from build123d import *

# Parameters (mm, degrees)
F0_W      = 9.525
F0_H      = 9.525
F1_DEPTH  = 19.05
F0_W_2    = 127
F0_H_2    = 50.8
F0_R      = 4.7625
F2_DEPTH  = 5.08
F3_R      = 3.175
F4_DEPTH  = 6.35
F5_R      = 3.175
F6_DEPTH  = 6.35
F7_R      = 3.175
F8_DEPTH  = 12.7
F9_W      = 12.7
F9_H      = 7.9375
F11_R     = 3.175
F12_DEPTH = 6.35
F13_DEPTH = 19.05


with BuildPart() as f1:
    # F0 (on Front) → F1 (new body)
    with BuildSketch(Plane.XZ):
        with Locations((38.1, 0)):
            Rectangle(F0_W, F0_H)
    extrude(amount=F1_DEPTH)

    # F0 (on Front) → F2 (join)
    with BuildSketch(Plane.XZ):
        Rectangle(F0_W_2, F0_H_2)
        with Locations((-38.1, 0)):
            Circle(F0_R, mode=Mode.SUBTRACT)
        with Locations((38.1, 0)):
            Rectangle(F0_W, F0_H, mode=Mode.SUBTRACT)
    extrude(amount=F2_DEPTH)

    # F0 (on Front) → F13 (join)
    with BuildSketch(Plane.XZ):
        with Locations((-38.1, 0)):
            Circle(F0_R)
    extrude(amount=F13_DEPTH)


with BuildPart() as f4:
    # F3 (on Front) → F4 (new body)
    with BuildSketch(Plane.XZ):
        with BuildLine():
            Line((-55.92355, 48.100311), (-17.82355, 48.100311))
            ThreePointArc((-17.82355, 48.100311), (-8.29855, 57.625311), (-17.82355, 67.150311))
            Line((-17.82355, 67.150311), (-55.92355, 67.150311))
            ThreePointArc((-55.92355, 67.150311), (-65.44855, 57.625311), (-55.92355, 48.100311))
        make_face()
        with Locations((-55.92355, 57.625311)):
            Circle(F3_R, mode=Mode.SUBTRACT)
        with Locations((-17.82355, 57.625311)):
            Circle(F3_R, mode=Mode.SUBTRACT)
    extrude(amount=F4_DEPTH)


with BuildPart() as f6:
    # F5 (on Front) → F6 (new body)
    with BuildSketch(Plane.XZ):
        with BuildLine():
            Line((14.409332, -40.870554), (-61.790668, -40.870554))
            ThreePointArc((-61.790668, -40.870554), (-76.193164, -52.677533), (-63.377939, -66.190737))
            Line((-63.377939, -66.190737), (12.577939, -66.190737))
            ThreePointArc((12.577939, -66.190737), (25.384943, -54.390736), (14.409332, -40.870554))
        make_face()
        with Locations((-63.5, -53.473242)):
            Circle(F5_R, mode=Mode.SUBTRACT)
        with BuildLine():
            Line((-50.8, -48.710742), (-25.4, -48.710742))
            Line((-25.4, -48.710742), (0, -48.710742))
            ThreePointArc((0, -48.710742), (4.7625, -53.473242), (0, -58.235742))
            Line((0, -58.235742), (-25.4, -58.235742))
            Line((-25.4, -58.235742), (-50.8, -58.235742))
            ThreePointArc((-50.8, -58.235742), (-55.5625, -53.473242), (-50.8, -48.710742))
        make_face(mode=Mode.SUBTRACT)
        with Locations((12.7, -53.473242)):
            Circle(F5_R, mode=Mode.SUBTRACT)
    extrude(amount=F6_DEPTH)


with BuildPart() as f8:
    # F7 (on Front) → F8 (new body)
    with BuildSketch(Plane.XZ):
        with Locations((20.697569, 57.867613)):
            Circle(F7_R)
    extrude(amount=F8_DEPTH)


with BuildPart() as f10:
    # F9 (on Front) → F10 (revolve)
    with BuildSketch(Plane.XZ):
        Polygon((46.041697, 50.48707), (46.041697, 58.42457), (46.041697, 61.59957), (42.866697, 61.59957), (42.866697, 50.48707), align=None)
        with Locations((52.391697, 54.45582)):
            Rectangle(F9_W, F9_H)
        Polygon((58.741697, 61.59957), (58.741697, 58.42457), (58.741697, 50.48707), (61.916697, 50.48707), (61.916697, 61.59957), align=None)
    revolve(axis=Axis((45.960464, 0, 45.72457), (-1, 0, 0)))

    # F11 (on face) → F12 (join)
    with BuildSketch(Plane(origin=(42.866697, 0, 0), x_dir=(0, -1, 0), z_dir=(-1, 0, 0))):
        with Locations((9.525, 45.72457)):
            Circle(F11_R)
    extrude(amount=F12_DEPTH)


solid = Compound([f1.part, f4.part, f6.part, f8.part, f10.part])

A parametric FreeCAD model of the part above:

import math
import FreeCAD as App
import Part
import Sketcher
from FreeCAD import Vector
Q = App.Units.Quantity


def add_polygon(sketch, points):
    """Adds a closed chain of lines whose ends are joined by coincident constraints."""
    first, n = sketch.GeometryCount, len(points)
    for a, b in zip(points, points[1:] + points[:1]):
        sketch.addGeometry(Part.LineSegment(App.Vector(*a, 0), App.Vector(*b, 0)), False)
    for i in range(n):
        sketch.addConstraint(Sketcher.Constraint("Coincident", first + i, 2, first + (i + 1) % n, 1))

doc = App.newDocument("Part")
params = doc.addObject("Spreadsheet::Sheet", "Params")
for row, (alias, value) in enumerate([
    ("sketch1_width", "0.375 in"),
    ("pad1_length", "0.75 in"),
    ("sketch2_width", "5 in"),
    ("sketch2_height", "2 in"),
    ("sketch2_diameter", "0.375 in"),
    ("sketch2_width2", "0.375 in"),
    ("pad2_length", "0.2 in"),
    ("sketch3_diameter", "0.375 in"),
    ("pad3_length", "0.75 in"),
    ("sketch4_diameter", "0.25 in"),
    ("sketch4_width", "1.5 in"),
    ("sketch4_radius", "0.375 in"),
    ("pad4_length", "0.25 in"),
    ("sketch5_diameter", "0.25 in"),
    ("sketch5_width", "3 in"),
    ("sketch5_width2", "2 in"),
    ("sketch5_radius", "0.1875 in"),
    ("pad5_length", "0.25 in"),
    ("sketch6_diameter", "0.25 in"),
    ("pad6_length", "0.5 in"),
    ("sketch7_width", "0.5 in"),
    ("sketch7_width2", "0.75 in"),
    ("sketch7_height", "0.4375 in"),
    ("revolution_angle", "360 deg"),
    ("sketch8_diameter", "0.25 in"),
    ("pad7_length", "0.25 in"),
], start=1):
    params.set(f"A{row}", alias)
    params.set(f"B{row}", "=" + value)
    params.setAlias(f"B{row}", alias)

body = doc.addObject("PartDesign::Body", "Body")

sketch1 = doc.addObject("Sketcher::SketchObject", "Sketch")
body.addObject(sketch1)
sketch1.AttachmentSupport = (doc.XZ_Plane, [""])
sketch1.MapMode = "FlatFace"
add_polygon(sketch1, [(33.3375, 4.7625), (33.3375, -4.7625), (42.8625, -4.7625), (42.8625, 4.7625)])
sketch1.addConstraint(Sketcher.Constraint("Vertical", 0))
sketch1.addConstraint(Sketcher.Constraint("Horizontal", 1))
sketch1.addConstraint(Sketcher.Constraint("Vertical", 2))
sketch1.addConstraint(Sketcher.Constraint("Horizontal", 3))
sketch1.addConstraint(Sketcher.Constraint("Equal", 3, 0))
sketch1.addConstraint(Sketcher.Constraint("DistanceX", 1, 1, 1, 2, Q("0.375 in")))
sketch1.addConstraint(Sketcher.Constraint("DistanceX", -1, 1, 0, 2, Q("1.3125 in")))
sketch1.addConstraint(Sketcher.Constraint("DistanceY", 0, 2, -1, 1, Q("0.1875 in")))
sketch1.setExpression("Constraints[9]", "Params.sketch1_width")
pad1 = doc.addObject("PartDesign::Pad", "Pad")
body.addObject(pad1)
pad1.Profile = sketch1
pad1.setExpression("Length", "Params.pad1_length")

sketch2 = doc.addObject("Sketcher::SketchObject", "Sketch001")
body.addObject(sketch2)
sketch2.AttachmentSupport = (doc.XZ_Plane, [""])
sketch2.MapMode = "FlatFace"
add_polygon(sketch2, [(-63.5, 25.4), (-63.5, -25.4), (63.5, -25.4), (63.5, 25.4)])
sketch2.addGeometry(Part.Circle(Vector(-38.1, 0, 0), Vector(0, 0, 1), 4.7625), False)
add_polygon(sketch2, [(42.8625, -4.7625), (33.3375, -4.7625), (33.3375, 4.7625), (42.8625, 4.7625)])
sketch2.addConstraint(Sketcher.Constraint("Vertical", 0))
sketch2.addConstraint(Sketcher.Constraint("Horizontal", 1))
sketch2.addConstraint(Sketcher.Constraint("Vertical", 2))
sketch2.addConstraint(Sketcher.Constraint("Horizontal", 3))
sketch2.addConstraint(Sketcher.Constraint("Horizontal", 5))
sketch2.addConstraint(Sketcher.Constraint("Vertical", 6))
sketch2.addConstraint(Sketcher.Constraint("Horizontal", 7))
sketch2.addConstraint(Sketcher.Constraint("Vertical", 8))
sketch2.addConstraint(Sketcher.Constraint("Symmetric", 0, 2, 2, 2, -1, 1))
sketch2.addConstraint(Sketcher.Constraint("PointOnObject", 4, 3, -1))
sketch2.addConstraint(Sketcher.Constraint("Equal", 7, 6))
sketch2.addConstraint(Sketcher.Constraint("DistanceX", 1, 1, 1, 2, Q("5 in")))
sketch2.addConstraint(Sketcher.Constraint("DistanceY", 0, 2, 0, 1, Q("2 in")))
sketch2.addConstraint(Sketcher.Constraint("Diameter", 4, Q("0.375 in")))
sketch2.addConstraint(Sketcher.Constraint("DistanceX", 0, 2, 4, 3, Q("1 in")))
sketch2.addConstraint(Sketcher.Constraint("DistanceX", 5, 2, 5, 1, Q("0.375 in")))
sketch2.addConstraint(Sketcher.Constraint("DistanceX", -1, 1, 5, 2, Q("1.3125 in")))
sketch2.addConstraint(Sketcher.Constraint("DistanceY", 5, 2, -1, 1, Q("0.1875 in")))
sketch2.setExpression("Constraints[19]", "Params.sketch2_width")
sketch2.setExpression("Constraints[20]", "Params.sketch2_height")
sketch2.setExpression("Constraints[21]", "Params.sketch2_diameter")
sketch2.setExpression("Constraints[23]", "Params.sketch2_width2")
pad2 = doc.addObject("PartDesign::Pad", "Pad001")
body.addObject(pad2)
pad2.Profile = sketch2
pad2.setExpression("Length", "Params.pad2_length")

sketch3 = doc.addObject("Sketcher::SketchObject", "Sketch002")
body.addObject(sketch3)
sketch3.AttachmentSupport = (doc.XZ_Plane, [""])
sketch3.MapMode = "FlatFace"
sketch3.addGeometry(Part.Circle(Vector(-38.1, 0, 0), Vector(0, 0, 1), 4.7625), False)
sketch3.addConstraint(Sketcher.Constraint("PointOnObject", 0, 3, -1))
sketch3.addConstraint(Sketcher.Constraint("Diameter", 0, Q("0.375 in")))
sketch3.addConstraint(Sketcher.Constraint("DistanceX", 0, 3, -1, 1, Q("1.5 in")))
sketch3.setExpression("Constraints[1]", "Params.sketch3_diameter")
pad3 = doc.addObject("PartDesign::Pad", "Pad002")
body.addObject(pad3)
pad3.Profile = sketch3
pad3.setExpression("Length", "Params.pad3_length")
body2 = doc.addObject("PartDesign::Body", "Body001")

sketch4 = doc.addObject("Sketcher::SketchObject", "Sketch003")
body2.addObject(sketch4)
sketch4.AttachmentSupport = (doc.getObject("XZ_Plane001"), [""])
sketch4.MapMode = "FlatFace"
sketch4.addGeometry(Part.LineSegment(Vector(-55.92355, 48.100311, 0), Vector(-17.82355, 48.100311, 0)), False)
sketch4.addGeometry(Part.ArcOfCircle(Part.Circle(Vector(-17.82355, 57.625311, 0), Vector(0, 0, 1), 9.525), math.radians(-90), math.radians(90)), False)
sketch4.addGeometry(Part.LineSegment(Vector(-17.82355, 67.150311, 0), Vector(-55.92355, 67.150311, 0)), False)
sketch4.addGeometry(Part.ArcOfCircle(Part.Circle(Vector(-55.92355, 57.625311, 0), Vector(0, 0, 1), 9.525), math.radians(90), math.radians(270)), False)
sketch4.addGeometry(Part.Circle(Vector(-55.92355, 57.625311, 0), Vector(0, 0, 1), 3.175), False)
sketch4.addGeometry(Part.Circle(Vector(-17.82355, 57.625311, 0), Vector(0, 0, 1), 3.175), False)
sketch4.addConstraint(Sketcher.Constraint("Tangent", 0, 2, 1, 1))
sketch4.addConstraint(Sketcher.Constraint("Tangent", 1, 2, 2, 1))
sketch4.addConstraint(Sketcher.Constraint("Tangent", 2, 2, 3, 1))
sketch4.addConstraint(Sketcher.Constraint("Tangent", 3, 2, 0, 1))
sketch4.addConstraint(Sketcher.Constraint("Horizontal", 0))
sketch4.addConstraint(Sketcher.Constraint("Horizontal", 2))
sketch4.addConstraint(Sketcher.Constraint("Coincident", 4, 3, 3, 3))
sketch4.addConstraint(Sketcher.Constraint("Coincident", 5, 3, 1, 3))
sketch4.addConstraint(Sketcher.Constraint("Equal", 4, 5))
sketch4.addConstraint(Sketcher.Constraint("Diameter", 4, Q("0.25 in")))
sketch4.addConstraint(Sketcher.Constraint("DistanceX", 0, 1, 0, 2, Q("1.5 in")))
sketch4.addConstraint(Sketcher.Constraint("Radius", 1, Q("0.375 in")))
sketch4.addConstraint(Sketcher.Constraint("DistanceX", 1, 3, -1, 1, 17.82355))
sketch4.addConstraint(Sketcher.Constraint("DistanceY", -1, 1, 1, 3, 57.625311))
sketch4.setExpression("Constraints[9]", "Params.sketch4_diameter")
sketch4.setExpression("Constraints[10]", "Params.sketch4_width")
sketch4.setExpression("Constraints[11]", "Params.sketch4_radius")
pad4 = doc.addObject("PartDesign::Pad", "Pad003")
body2.addObject(pad4)
pad4.Profile = sketch4
pad4.setExpression("Length", "Params.pad4_length")
body3 = doc.addObject("PartDesign::Body", "Body002")

sketch5 = doc.addObject("Sketcher::SketchObject", "Sketch004")
body3.addObject(sketch5)
sketch5.AttachmentSupport = (doc.getObject("XZ_Plane002"), [""])
sketch5.MapMode = "FlatFace"
sketch5.addGeometry(Part.LineSegment(Vector(14.409332, -40.870554, 0), Vector(-61.790668, -40.870554, 0)), False)
sketch5.addGeometry(Part.ArcOfCircle(Part.Circle(Vector(-63.5, -53.473242, 0), Vector(0, 0, 1), 12.71808), math.radians(82.275974), math.radians(270.549901)), False)
sketch5.addGeometry(Part.LineSegment(Vector(-63.377939, -66.190737, 0), Vector(12.577939, -66.190737, 0)), False)
sketch5.addGeometry(Part.ArcOfCircle(Part.Circle(Vector(12.7, -53.473242, 0), Vector(0, 0, 1), 12.71808), math.radians(-90.549902), math.radians(82.275975)), False)
sketch5.addGeometry(Part.Circle(Vector(-63.5, -53.473242, 0), Vector(0, 0, 1), 3.175), False)
sketch5.addGeometry(Part.ArcOfCircle(Part.Circle(Vector(-50.8, -53.473242, 0), Vector(0, 0, 1), 4.7625), math.radians(90), math.radians(270)), False)
sketch5.addGeometry(Part.LineSegment(Vector(-50.8, -48.710742, 0), Vector(0, -48.710742, 0)), False)
sketch5.addGeometry(Part.ArcOfCircle(Part.Circle(Vector(0, -53.473242, 0), Vector(0, 0, 1), 4.7625), math.radians(-90), math.radians(90)), False)
sketch5.addGeometry(Part.LineSegment(Vector(0, -58.235742, 0), Vector(-50.8, -58.235742, 0)), False)
sketch5.addGeometry(Part.Circle(Vector(12.7, -53.473242, 0), Vector(0, 0, 1), 3.175), False)
sketch5.addConstraint(Sketcher.Constraint("Coincident", 0, 2, 1, 1))
sketch5.addConstraint(Sketcher.Constraint("Coincident", 1, 2, 2, 1))
sketch5.addConstraint(Sketcher.Constraint("Coincident", 2, 2, 3, 1))
sketch5.addConstraint(Sketcher.Constraint("Coincident", 3, 2, 0, 1))
sketch5.addConstraint(Sketcher.Constraint("Tangent", 5, 1, 6, 1))
sketch5.addConstraint(Sketcher.Constraint("Tangent", 6, 2, 7, 2))
sketch5.addConstraint(Sketcher.Constraint("Tangent", 7, 1, 8, 1))
sketch5.addConstraint(Sketcher.Constraint("Tangent", 8, 2, 5, 2))
sketch5.addConstraint(Sketcher.Constraint("Horizontal", 0))
sketch5.addConstraint(Sketcher.Constraint("Horizontal", 2))
sketch5.addConstraint(Sketcher.Constraint("Horizontal", 6))
sketch5.addConstraint(Sketcher.Constraint("Horizontal", 8))
sketch5.addConstraint(Sketcher.Constraint("Coincident", 4, 3, 1, 3))
sketch5.addConstraint(Sketcher.Constraint("Coincident", 9, 3, 3, 3))
sketch5.addConstraint(Sketcher.Constraint("Equal", 1, 3))
sketch5.addConstraint(Sketcher.Constraint("Equal", 4, 9))
sketch5.addConstraint(Sketcher.Constraint("PointOnObject", 7, 3, -2))
sketch5.addConstraint(Sketcher.Constraint("Horizontal", 1, 3, 3, 3))
sketch5.addConstraint(Sketcher.Constraint("Horizontal", 4, 3, 5, 3))
sketch5.addConstraint(Sketcher.Constraint("Diameter", 4, Q("0.25 in")))
sketch5.addConstraint(Sketcher.Constraint("DistanceX", 0, 2, 0, 1, Q("3 in")))
sketch5.addConstraint(Sketcher.Constraint("DistanceX", 6, 1, 6, 2, Q("2 in")))
sketch5.addConstraint(Sketcher.Constraint("Radius", 5, Q("0.1875 in")))
sketch5.addConstraint(Sketcher.Constraint("DistanceX", 1, 3, -1, 1, Q("2.5 in")))
sketch5.addConstraint(Sketcher.Constraint("Radius", 1, 12.71808))
sketch5.addConstraint(Sketcher.Constraint("DistanceX", 2, 1, 2, 2, 75.955878))
sketch5.addConstraint(Sketcher.Constraint("DistanceY", 5, 1, -1, 1, 48.710742))
sketch5.addConstraint(Sketcher.Constraint("DistanceX", 1, 3, 0, 2, 1.709332))
sketch5.setExpression("Constraints[19]", "Params.sketch5_diameter")
sketch5.setExpression("Constraints[20]", "Params.sketch5_width")
sketch5.setExpression("Constraints[21]", "Params.sketch5_width2")
sketch5.setExpression("Constraints[22]", "Params.sketch5_radius")
pad5 = doc.addObject("PartDesign::Pad", "Pad004")
body3.addObject(pad5)
pad5.Profile = sketch5
pad5.setExpression("Length", "Params.pad5_length")
body4 = doc.addObject("PartDesign::Body", "Body003")

sketch6 = doc.addObject("Sketcher::SketchObject", "Sketch005")
body4.addObject(sketch6)
sketch6.AttachmentSupport = (doc.getObject("XZ_Plane003"), [""])
sketch6.MapMode = "FlatFace"
sketch6.addGeometry(Part.Circle(Vector(20.697569, 57.867613, 0), Vector(0, 0, 1), 3.175), False)
sketch6.addConstraint(Sketcher.Constraint("Diameter", 0, Q("0.25 in")))
sketch6.addConstraint(Sketcher.Constraint("DistanceX", -1, 1, 0, 3, 20.697569))
sketch6.addConstraint(Sketcher.Constraint("DistanceY", -1, 1, 0, 3, 57.867613))
sketch6.setExpression("Constraints[0]", "Params.sketch6_diameter")
pad6 = doc.addObject("PartDesign::Pad", "Pad005")
body4.addObject(pad6)
pad6.Profile = sketch6
pad6.setExpression("Length", "Params.pad6_length")
body5 = doc.addObject("PartDesign::Body", "Body004")

sketch7 = doc.addObject("Sketcher::SketchObject", "Sketch006")
body5.addObject(sketch7)
sketch7.AttachmentSupport = (doc.getObject("XZ_Plane004"), [""])
sketch7.MapMode = "FlatFace"
add_polygon(sketch7, [(46.041697, 58.42457), (46.041697, 61.59957), (42.866697, 61.59957), (42.866697, 50.48707), (61.916697, 50.48707), (61.916697, 61.59957), (58.741697, 61.59957), (58.741697, 58.42457)])
sketch7.addGeometry(Part.LineSegment(Vector(61.916697, 45.72457, 0), Vector(42.866697, 45.72457, 0)), True)
sketch7.addConstraint(Sketcher.Constraint("Vertical", 0))
sketch7.addConstraint(Sketcher.Constraint("Horizontal", 1))
sketch7.addConstraint(Sketcher.Constraint("Vertical", 2))
sketch7.addConstraint(Sketcher.Constraint("Horizontal", 3))
sketch7.addConstraint(Sketcher.Constraint("Vertical", 4))
sketch7.addConstraint(Sketcher.Constraint("Horizontal", 5))
sketch7.addConstraint(Sketcher.Constraint("Vertical", 6))
sketch7.addConstraint(Sketcher.Constraint("Horizontal", 7))
sketch7.addConstraint(Sketcher.Constraint("Horizontal", 8))
sketch7.addConstraint(Sketcher.Constraint("Horizontal", 1, 2, 4, 2))
sketch7.addConstraint(Sketcher.Constraint("Vertical", 4, 2, 8, 1))
sketch7.addConstraint(Sketcher.Constraint("Vertical", 2, 2, 8, 2))
sketch7.addConstraint(Sketcher.Constraint("Equal", 1, 5))
sketch7.addConstraint(Sketcher.Constraint("Equal", 5, 0))
sketch7.addConstraint(Sketcher.Constraint("DistanceX", 7, 2, 7, 1, Q("0.5 in")))
sketch7.addConstraint(Sketcher.Constraint("DistanceX", 3, 1, 3, 2, Q("0.75 in")))
sketch7.addConstraint(Sketcher.Constraint("DistanceY", 8, 1, 6, 2, Q("0.5 in")))
sketch7.addConstraint(Sketcher.Constraint("DistanceY", 2, 2, 2, 1, Q("0.4375 in")))
sketch7.addConstraint(Sketcher.Constraint("DistanceY", -1, 1, 0, 2, 61.59957))
sketch7.addConstraint(Sketcher.Constraint("DistanceX", -1, 1, 0, 2, 46.041697))
sketch7.setExpression("Constraints[22]", "Params.sketch7_width")
sketch7.setExpression("Constraints[23]", "Params.sketch7_width2")
sketch7.setExpression("Constraints[25]", "Params.sketch7_height")
revolution = doc.addObject("PartDesign::Revolution", "Revolution")
body5.addObject(revolution)
revolution.Profile = sketch7
revolution.ReferenceAxis = (sketch7, ["Axis0"])
revolution.setExpression("Angle", "Params.revolution_angle")

sketch8 = doc.addObject("Sketcher::SketchObject", "Sketch007")
body5.addObject(sketch8)
sketch8.AttachmentSupport = (doc.getObject("YZ_Plane004"), [""])
sketch8.MapMode = "FlatFace"
sketch8.AttachmentOffset = App.Placement(Vector(0, 0, 42.866697), App.Rotation())
sketch8.addGeometry(Part.Circle(Vector(-9.525, 45.72457, 0), Vector(0, 0, 1), 3.175), False)
sketch8.addConstraint(Sketcher.Constraint("Diameter", 0, Q("0.25 in")))
sketch8.addConstraint(Sketcher.Constraint("DistanceX", 0, 3, -1, 1, Q("0.375 in")))
sketch8.addConstraint(Sketcher.Constraint("DistanceY", -1, 1, 0, 3, 45.72457))
sketch8.setExpression("Constraints[0]", "Params.sketch8_diameter")
pad7 = doc.addObject("PartDesign::Pad", "Pad006")
body5.addObject(pad7)
pad7.Profile = sketch8
pad7.setExpression("Length", "Params.pad7_length")
pad7.Reversed = True

doc.recompute()
